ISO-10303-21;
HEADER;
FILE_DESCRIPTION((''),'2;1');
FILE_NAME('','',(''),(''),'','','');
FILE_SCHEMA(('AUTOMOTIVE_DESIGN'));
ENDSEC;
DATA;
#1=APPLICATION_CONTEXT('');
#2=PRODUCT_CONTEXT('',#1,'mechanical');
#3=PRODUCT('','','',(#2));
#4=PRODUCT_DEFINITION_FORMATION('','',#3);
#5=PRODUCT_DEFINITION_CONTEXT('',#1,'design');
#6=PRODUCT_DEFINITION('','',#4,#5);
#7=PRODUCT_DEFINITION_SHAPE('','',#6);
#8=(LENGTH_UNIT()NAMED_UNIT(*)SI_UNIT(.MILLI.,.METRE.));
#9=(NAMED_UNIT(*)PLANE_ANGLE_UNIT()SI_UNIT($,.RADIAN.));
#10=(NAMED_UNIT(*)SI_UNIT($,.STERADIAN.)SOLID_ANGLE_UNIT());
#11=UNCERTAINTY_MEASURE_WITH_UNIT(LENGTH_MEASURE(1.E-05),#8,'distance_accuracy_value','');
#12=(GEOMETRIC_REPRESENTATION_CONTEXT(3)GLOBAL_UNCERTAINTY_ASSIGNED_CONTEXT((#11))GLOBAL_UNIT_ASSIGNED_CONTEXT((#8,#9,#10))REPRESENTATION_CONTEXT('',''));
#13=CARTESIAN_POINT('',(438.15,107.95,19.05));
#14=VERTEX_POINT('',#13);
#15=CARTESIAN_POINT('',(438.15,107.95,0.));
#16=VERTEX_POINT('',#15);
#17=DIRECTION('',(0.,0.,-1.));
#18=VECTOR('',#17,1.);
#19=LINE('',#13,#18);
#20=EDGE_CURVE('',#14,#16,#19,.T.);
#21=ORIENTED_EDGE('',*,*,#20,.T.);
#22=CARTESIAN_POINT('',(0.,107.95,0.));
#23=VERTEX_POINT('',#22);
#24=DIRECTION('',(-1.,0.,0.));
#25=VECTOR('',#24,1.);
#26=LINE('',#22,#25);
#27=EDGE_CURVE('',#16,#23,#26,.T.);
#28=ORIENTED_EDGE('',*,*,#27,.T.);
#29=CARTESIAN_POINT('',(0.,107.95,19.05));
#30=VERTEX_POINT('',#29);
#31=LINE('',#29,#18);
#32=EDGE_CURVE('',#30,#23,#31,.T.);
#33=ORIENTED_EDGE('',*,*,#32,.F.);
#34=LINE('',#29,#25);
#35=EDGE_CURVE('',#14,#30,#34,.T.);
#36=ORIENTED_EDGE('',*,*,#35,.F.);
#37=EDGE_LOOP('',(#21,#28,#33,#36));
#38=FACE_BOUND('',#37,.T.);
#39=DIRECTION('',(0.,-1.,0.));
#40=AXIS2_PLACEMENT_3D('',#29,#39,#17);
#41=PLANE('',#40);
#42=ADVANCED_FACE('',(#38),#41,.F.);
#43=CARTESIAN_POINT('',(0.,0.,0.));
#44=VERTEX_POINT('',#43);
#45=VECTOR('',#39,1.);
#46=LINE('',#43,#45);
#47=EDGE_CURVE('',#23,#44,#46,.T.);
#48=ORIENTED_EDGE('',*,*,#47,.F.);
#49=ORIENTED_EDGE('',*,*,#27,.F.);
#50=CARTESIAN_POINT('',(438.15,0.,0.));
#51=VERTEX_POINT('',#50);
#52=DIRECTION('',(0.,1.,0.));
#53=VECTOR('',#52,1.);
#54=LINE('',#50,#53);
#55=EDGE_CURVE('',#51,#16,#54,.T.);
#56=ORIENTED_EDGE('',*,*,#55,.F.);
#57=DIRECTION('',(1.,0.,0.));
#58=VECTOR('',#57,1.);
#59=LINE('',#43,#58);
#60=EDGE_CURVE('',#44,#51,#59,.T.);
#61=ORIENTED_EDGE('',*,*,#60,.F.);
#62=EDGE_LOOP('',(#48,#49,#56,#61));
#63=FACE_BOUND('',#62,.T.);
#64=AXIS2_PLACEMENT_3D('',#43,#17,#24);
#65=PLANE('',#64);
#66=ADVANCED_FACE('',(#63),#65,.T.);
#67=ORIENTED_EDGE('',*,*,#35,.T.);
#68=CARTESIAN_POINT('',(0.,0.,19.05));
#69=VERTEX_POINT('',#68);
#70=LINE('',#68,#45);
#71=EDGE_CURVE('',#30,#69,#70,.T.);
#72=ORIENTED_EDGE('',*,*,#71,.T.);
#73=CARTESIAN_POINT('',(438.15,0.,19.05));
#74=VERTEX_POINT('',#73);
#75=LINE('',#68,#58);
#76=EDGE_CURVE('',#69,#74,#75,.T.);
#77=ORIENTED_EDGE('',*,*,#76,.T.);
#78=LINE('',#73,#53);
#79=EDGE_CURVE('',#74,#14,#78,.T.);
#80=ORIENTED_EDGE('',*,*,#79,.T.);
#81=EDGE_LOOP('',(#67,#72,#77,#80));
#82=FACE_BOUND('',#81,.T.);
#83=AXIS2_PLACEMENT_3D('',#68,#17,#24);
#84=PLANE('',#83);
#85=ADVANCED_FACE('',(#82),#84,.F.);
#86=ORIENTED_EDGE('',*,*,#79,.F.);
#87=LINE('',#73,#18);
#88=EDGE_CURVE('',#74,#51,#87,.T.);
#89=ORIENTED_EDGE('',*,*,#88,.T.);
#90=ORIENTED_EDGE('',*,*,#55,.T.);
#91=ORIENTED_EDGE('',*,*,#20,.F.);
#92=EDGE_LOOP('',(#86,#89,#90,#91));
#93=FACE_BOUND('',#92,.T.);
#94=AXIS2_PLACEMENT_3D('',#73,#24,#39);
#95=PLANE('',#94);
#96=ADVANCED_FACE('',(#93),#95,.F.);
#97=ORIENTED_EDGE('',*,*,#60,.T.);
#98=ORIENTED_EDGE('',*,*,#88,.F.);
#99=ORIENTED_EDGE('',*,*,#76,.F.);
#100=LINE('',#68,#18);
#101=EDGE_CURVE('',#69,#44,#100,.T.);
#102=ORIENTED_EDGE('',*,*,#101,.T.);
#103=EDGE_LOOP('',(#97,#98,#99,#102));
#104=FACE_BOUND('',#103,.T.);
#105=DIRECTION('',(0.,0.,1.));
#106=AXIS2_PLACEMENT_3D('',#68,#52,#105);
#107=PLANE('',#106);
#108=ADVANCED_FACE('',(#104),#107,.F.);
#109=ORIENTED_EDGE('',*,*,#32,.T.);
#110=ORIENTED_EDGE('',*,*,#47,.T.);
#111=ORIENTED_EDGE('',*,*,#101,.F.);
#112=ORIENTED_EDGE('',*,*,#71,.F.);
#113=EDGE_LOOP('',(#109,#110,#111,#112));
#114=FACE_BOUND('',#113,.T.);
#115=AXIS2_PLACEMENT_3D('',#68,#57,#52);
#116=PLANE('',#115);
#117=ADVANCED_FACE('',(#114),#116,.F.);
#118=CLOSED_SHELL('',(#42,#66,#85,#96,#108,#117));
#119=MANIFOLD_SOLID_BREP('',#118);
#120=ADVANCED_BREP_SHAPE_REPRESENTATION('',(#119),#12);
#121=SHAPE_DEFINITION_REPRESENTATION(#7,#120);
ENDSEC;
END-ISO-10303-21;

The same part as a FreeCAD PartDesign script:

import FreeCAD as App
import Part
import Sketcher
Q = App.Units.Quantity

doc = App.newDocument("Part")
params = doc.addObject("Spreadsheet::Sheet", "Params")
for row, (alias, value) in enumerate([
    ("sketch1_width", "17.25 in"),
    ("sketch1_height", "4.25 in"),
    ("pad1_length", "0.75 in"),
], start=1):
    params.set(f"A{row}", alias)
    params.set(f"B{row}", "=" + value)
    params.setAlias(f"B{row}", alias)

body = doc.addObject("PartDesign::Body", "Body")

sketch1 = body.newObject("Sketcher::SketchObject", "Sketch")
sketch1.AttachmentSupport = (doc.getObject("XY_Plane"), [""])
sketch1.MapMode = "FlatFace"
sketch1.addGeometry([
    Part.LineSegment(App.Vector(0, 108, 0), App.Vector(0, 0, 0)),
    Part.LineSegment(App.Vector(0, 0, 0), App.Vector(438, 0, 0)),
    Part.LineSegment(App.Vector(438, 0, 0), App.Vector(438, 108, 0)),
    Part.LineSegment(App.Vector(438, 108, 0), App.Vector(0, 108, 0)),
], False)
sketch1.addConstraint([
    Sketcher.Constraint("Coincident", 0, 2, 1, 1),
    Sketcher.Constraint("Coincident", 1, 2, 2, 1),
    Sketcher.Constraint("Coincident", 2, 2, 3, 1),
    Sketcher.Constraint("Coincident", 3, 2, 0, 1),
    Sketcher.Constraint("Vertical", 0),
    Sketcher.Constraint("Horizontal", 1),
    Sketcher.Constraint("Vertical", 2),
    Sketcher.Constraint("Horizontal", 3),
    Sketcher.Constraint("Coincident", 0, 2, -1, 1),
    Sketcher.Constraint("DistanceX", 1, 1, 1, 2, Q("17.25 in")),
    Sketcher.Constraint("DistanceY", 0, 2, 0, 1, Q("4.25 in")),
])
sketch1.setExpression("Constraints[9]", "Params.sketch1_width")
sketch1.setExpression("Constraints[10]", "Params.sketch1_height")
pad1 = body.newObject("PartDesign::Pad", "Pad")
pad1.Profile = sketch1
pad1.setExpression("Length", "Params.pad1_length")

doc.recompute()
